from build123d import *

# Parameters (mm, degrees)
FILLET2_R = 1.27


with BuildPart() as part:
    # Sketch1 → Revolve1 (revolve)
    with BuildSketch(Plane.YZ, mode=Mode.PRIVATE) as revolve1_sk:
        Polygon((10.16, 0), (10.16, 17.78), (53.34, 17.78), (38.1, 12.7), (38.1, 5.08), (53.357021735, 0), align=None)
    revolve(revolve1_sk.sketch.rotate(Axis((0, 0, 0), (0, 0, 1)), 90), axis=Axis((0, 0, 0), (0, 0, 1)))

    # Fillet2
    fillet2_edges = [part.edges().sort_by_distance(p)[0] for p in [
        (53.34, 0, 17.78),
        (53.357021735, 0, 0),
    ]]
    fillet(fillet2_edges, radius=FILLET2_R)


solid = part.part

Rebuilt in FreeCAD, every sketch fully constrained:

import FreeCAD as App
import Part
import Sketcher
from FreeCAD import Vector
Q = App.Units.Quantity


def edges_at(feature, points):
    """Names of the edges that pass closest to the given points."""
    edges = feature.Shape.Edges
    near = lambda p: min(range(len(edges)), key=lambda i: edges[i].distToShape(Part.Vertex(*p))[0])
    return sorted({f"Edge{near(p) + 1}" for p in points})

doc = App.newDocument("Part")
body = doc.addObject("PartDesign::Body", "Body")

# Sketch on YZ plane
sketch1 = body.newObject("Sketcher::SketchObject", "Sketch")
sketch1.AttachmentSupport = (doc.getObject("YZ_Plane"), [""])
sketch1.MapMode = "FlatFace"
sketch1.addGeometry([
    Part.LineSegment(Vector(10, 18, 0), Vector(10, 0, 0)),  # 0
    Part.LineSegment(Vector(10, 0, 0), Vector(53, 0, 0)),  # 1
    Part.LineSegment(Vector(53, 0, 0), Vector(38, 5, 0)),  # 2
    Part.LineSegment(Vector(38, 5, 0), Vector(38, 13, 0)),  # 3
    Part.LineSegment(Vector(38, 13, 0), Vector(53, 18, 0)),  # 4
    Part.LineSegment(Vector(53, 18, 0), Vector(10, 18, 0)),  # 5
], False)
sketch1.addConstraint([
    Sketcher.Constraint("Coincident", 0, 2, 1, 1),
    Sketcher.Constraint("Coincident", 1, 2, 2, 1),
    Sketcher.Constraint("Coincident", 2, 2, 3, 1),
    Sketcher.Constraint("Coincident", 3, 2, 4, 1),
    Sketcher.Constraint("Coincident", 4, 2, 5, 1),
    Sketcher.Constraint("Coincident", 5, 2, 0, 1),
    Sketcher.Constraint("Vertical", 0),
    Sketcher.Constraint("Horizontal", 1),
    Sketcher.Constraint("Vertical", 3),
    Sketcher.Constraint("Horizontal", 5),
    Sketcher.Constraint("PointOnObject", 0, 2, -1),
    Sketcher.Constraint("DistanceX", 5, 2, 5, 1, Q("1.7 in")),
    Sketcher.Constraint("DistanceY", 0, 2, 0, 1, Q("0.7 in")),
    Sketcher.Constraint("DistanceY", 3, 1, 3, 2, Q("0.3 in")),
    Sketcher.Constraint("DistanceX", -1, 1, 0, 2, Q("0.4 in")),
    Sketcher.Constraint("DistanceX", -1, 1, 2, 2, Q("1.5 in")),
    Sketcher.Constraint("DistanceY", -1, 1, 2, 2, Q("0.2 in")),
    Sketcher.Constraint("DistanceX", 1, 1, 1, 2, 43.197022),
])
revolution = body.newObject("PartDesign::Revolution", "Revolution")
revolution.Profile = sketch1
revolution.ReferenceAxis = (sketch1, ["V_Axis"])
revolution.Angle = 360
doc.recompute()

fillet = body.newObject("PartDesign::Fillet", "Fillet")
fillet.Base = (revolution, edges_at(revolution, [(53.34, 0, 17.78), (53.357, 0, 0)]))
fillet.Radius = Q("0.05 in")

doc.recompute()
